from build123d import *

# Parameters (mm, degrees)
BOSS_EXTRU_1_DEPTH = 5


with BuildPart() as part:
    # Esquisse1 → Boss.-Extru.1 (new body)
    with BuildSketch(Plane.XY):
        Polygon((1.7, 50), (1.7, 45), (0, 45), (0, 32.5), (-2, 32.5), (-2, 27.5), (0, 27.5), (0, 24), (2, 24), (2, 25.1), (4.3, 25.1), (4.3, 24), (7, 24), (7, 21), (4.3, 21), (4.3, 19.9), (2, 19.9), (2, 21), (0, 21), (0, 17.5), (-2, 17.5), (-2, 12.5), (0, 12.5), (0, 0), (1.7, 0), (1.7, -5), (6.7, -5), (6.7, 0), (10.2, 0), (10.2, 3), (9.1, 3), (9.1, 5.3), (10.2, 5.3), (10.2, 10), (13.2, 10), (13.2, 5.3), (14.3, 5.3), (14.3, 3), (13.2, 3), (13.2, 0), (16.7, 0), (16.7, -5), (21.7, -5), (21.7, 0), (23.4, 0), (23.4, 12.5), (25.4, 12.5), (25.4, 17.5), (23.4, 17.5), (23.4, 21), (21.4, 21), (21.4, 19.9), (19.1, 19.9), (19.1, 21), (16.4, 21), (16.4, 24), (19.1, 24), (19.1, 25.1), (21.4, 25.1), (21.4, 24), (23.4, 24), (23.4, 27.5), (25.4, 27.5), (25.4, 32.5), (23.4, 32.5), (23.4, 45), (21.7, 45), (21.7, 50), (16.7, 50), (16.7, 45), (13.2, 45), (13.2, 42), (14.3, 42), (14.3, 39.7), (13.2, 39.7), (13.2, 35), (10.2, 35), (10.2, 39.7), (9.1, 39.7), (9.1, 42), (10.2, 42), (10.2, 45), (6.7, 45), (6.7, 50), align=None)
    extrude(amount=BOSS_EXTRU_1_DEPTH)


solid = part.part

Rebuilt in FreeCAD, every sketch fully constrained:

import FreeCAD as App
import Part
import Sketcher

doc = App.newDocument("Part")
body = doc.addObject("PartDesign::Body", "Body")

sketch1 = body.newObject("Sketcher::SketchObject", "Sketch")
sketch1.AttachmentSupport = (doc.getObject("XY_Plane"), [""])
sketch1.MapMode = "FlatFace"
sketch1.addGeometry([
    Part.LineSegment(App.Vector(1.7, 50, 0), App.Vector(1.7, 45, 0)),
    Part.LineSegment(App.Vector(1.7, 45, 0), App.Vector(0, 45, 0)),
    Part.LineSegment(App.Vector(0, 45, 0), App.Vector(0, 32.5, 0)),
    Part.LineSegment(App.Vector(0, 32.5, 0), App.Vector(-2, 32.5, 0)),
    Part.LineSegment(App.Vector(-2, 32.5, 0), App.Vector(-2, 27.5, 0)),
    Part.LineSegment(App.Vector(-2, 27.5, 0), App.Vector(0, 27.5, 0)),
    Part.LineSegment(App.Vector(0, 27.5, 0), App.Vector(0, 24, 0)),
    Part.LineSegment(App.Vector(0, 24, 0), App.Vector(2, 24, 0)),
    Part.LineSegment(App.Vector(2, 24, 0), App.Vector(2, 25.1, 0)),
    Part.LineSegment(App.Vector(2, 25.1, 0), App.Vector(4.3, 25.1, 0)),
    Part.LineSegment(App.Vector(4.3, 25.1, 0), App.Vector(4.3, 24, 0)),
    Part.LineSegment(App.Vector(4.3, 24, 0), App.Vector(7, 24, 0)),
    Part.LineSegment(App.Vector(7, 24, 0), App.Vector(7, 21, 0)),
    Part.LineSegment(App.Vector(7, 21, 0), App.Vector(4.3, 21, 0)),
    Part.LineSegment(App.Vector(4.3, 21, 0), App.Vector(4.3, 19.9, 0)),
    Part.LineSegment(App.Vector(4.3, 19.9, 0), App.Vector(2, 19.9, 0)),
    Part.LineSegment(App.Vector(2, 19.9, 0), App.Vector(2, 21, 0)),
    Part.LineSegment(App.Vector(2, 21, 0), App.Vector(0, 21, 0)),
    Part.LineSegment(App.Vector(0, 21, 0), App.Vector(0, 17.5, 0)),
    Part.LineSegment(App.Vector(0, 17.5, 0), App.Vector(-2, 17.5, 0)),
    Part.LineSegment(App.Vector(-2, 17.5, 0), App.Vector(-2, 12.5, 0)),
    Part.LineSegment(App.Vector(-2, 12.5, 0), App.Vector(0, 12.5, 0)),
    Part.LineSegment(App.Vector(0, 12.5, 0), App.Vector(0, 0, 0)),
    Part.LineSegment(App.Vector(0, 0, 0), App.Vector(1.7, 0, 0)),
    Part.LineSegment(App.Vector(1.7, 0, 0), App.Vector(1.7, -5, 0)),
    Part.LineSegment(App.Vector(1.7, -5, 0), App.Vector(6.7, -5, 0)),
    Part.LineSegment(App.Vector(6.7, -5, 0), App.Vector(6.7, 0, 0)),
    Part.LineSegment(App.Vector(6.7, 0, 0), App.Vector(10.2, 0, 0)),
    Part.LineSegment(App.Vector(10.2, 0, 0), App.Vector(10.2, 3, 0)),
    Part.LineSegment(App.Vector(10.2, 3, 0), App.Vector(9.1, 3, 0)),
    Part.LineSegment(App.Vector(9.1, 3, 0), App.Vector(9.1, 5.3, 0)),
    Part.LineSegment(App.Vector(9.1, 5.3, 0), App.Vector(10.2, 5.3, 0)),
    Part.LineSegment(App.Vector(10.2, 5.3, 0), App.Vector(10.2, 10, 0)),
    Part.LineSegment(App.Vector(10.2, 10, 0), App.Vector(13.2, 10, 0)),
    Part.LineSegment(App.Vector(13.2, 10, 0), App.Vector(13.2, 5.3, 0)),
    Part.LineSegment(App.Vector(13.2, 5.3, 0), App.Vector(14.3, 5.3, 0)),
    Part.LineSegment(App.Vector(14.3, 5.3, 0), App.Vector(14.3, 3, 0)),
    Part.LineSegment(App.Vector(14.3, 3, 0), App.Vector(13.2, 3, 0)),
    Part.LineSegment(App.Vector(13.2, 3, 0), App.Vector(13.2, 0, 0)),
    Part.LineSegment(App.Vector(13.2, 0, 0), App.Vector(16.7, 0, 0)),
    Part.LineSegment(App.Vector(16.7, 0, 0), App.Vector(16.7, -5, 0)),
    Part.LineSegment(App.Vector(16.7, -5, 0), App.Vector(21.7, -5, 0)),
    Part.LineSegment(App.Vector(21.7, -5, 0), App.Vector(21.7, 0, 0)),
    Part.LineSegment(App.Vector(21.7, 0, 0), App.Vector(23.4, 0, 0)),
    Part.LineSegment(App.Vector(23.4, 0, 0), App.Vector(23.4, 12.5, 0)),
    Part.LineSegment(App.Vector(23.4, 12.5, 0), App.Vector(25.4, 12.5, 0)),
    Part.LineSegment(App.Vector(25.4, 12.5, 0), App.Vector(25.4, 17.5, 0)),
    Part.LineSegment(App.Vector(25.4, 17.5, 0), App.Vector(23.4, 17.5, 0)),
    Part.LineSegment(App.Vector(23.4, 17.5, 0), App.Vector(23.4, 21, 0)),
    Part.LineSegment(App.Vector(23.4, 21, 0), App.Vector(21.4, 21, 0)),
    Part.LineSegment(App.Vector(21.4, 21, 0), App.Vector(21.4, 19.9, 0)),
    Part.LineSegment(App.Vector(21.4, 19.9, 0), App.Vector(19.1, 19.9, 0)),
    Part.LineSegment(App.Vector(19.1, 19.9, 0), App.Vector(19.1, 21, 0)),
    Part.LineSegment(App.Vector(19.1, 21, 0), App.Vector(16.4, 21, 0)),
    Part.LineSegment(App.Vector(16.4, 21, 0), App.Vector(16.4, 24, 0)),
    Part.LineSegment(App.Vector(16.4, 24, 0), App.Vector(19.1, 24, 0)),
    Part.LineSegment(App.Vector(19.1, 24, 0), App.Vector(19.1, 25.1, 0)),
    Part.LineSegment(App.Vector(19.1, 25.1, 0), App.Vector(21.4, 25.1, 0)),
    Part.LineSegment(App.Vector(21.4, 25.1, 0), App.Vector(21.4, 24, 0)),
    Part.LineSegment(App.Vector(21.4, 24, 0), App.Vector(23.4, 24, 0)),
    Part.LineSegment(App.Vector(23.4, 24, 0), App.Vector(23.4, 27.5, 0)),
    Part.LineSegment(App.Vector(23.4, 27.5, 0), App.Vector(25.4, 27.5, 0)),
    Part.LineSegment(App.Vector(25.4, 27.5, 0), App.Vector(25.4, 32.5, 0)),
    Part.LineSegment(App.Vector(25.4, 32.5, 0), App.Vector(23.4, 32.5, 0)),
    Part.LineSegment(App.Vector(23.4, 32.5, 0), App.Vector(23.4, 45, 0)),
    Part.LineSegment(App.Vector(23.4, 45, 0), App.Vector(21.7, 45, 0)),
    Part.LineSegment(App.Vector(21.7, 45, 0), App.Vector(21.7, 50, 0)),
    Part.LineSegment(App.Vector(21.7, 50, 0), App.Vector(16.7, 50, 0)),
    Part.LineSegment(App.Vector(16.7, 50, 0), App.Vector(16.7, 45, 0)),
    Part.LineSegment(App.Vector(16.7, 45, 0), App.Vector(13.2, 45, 0)),
    Part.LineSegment(App.Vector(13.2, 45, 0), App.Vector(13.2, 42, 0)),
    Part.LineSegment(App.Vector(13.2, 42, 0), App.Vector(14.3, 42, 0)),
    Part.LineSegment(App.Vector(14.3, 42, 0), App.Vector(14.3, 39.7, 0)),
    Part.LineSegment(App.Vector(14.3, 39.7, 0), App.Vector(13.2, 39.7, 0)),
    Part.LineSegment(App.Vector(13.2, 39.7, 0), App.Vector(13.2, 35, 0)),
    Part.LineSegment(App.Vector(13.2, 35, 0), App.Vector(10.2, 35, 0)),
    Part.LineSegment(App.Vector(10.2, 35, 0), App.Vector(10.2, 39.7, 0)),
    Part.LineSegment(App.Vector(10.2, 39.7, 0), App.Vector(9.1, 39.7, 0)),
    Part.LineSegment(App.Vector(9.1, 39.7, 0), App.Vector(9.1, 42, 0)),
    Part.LineSegment(App.Vector(9.1, 42, 0), App.Vector(10.2, 42, 0)),
    Part.LineSegment(App.Vector(10.2, 42, 0), App.Vector(10.2, 45, 0)),
    Part.LineSegment(App.Vector(10.2, 45, 0), App.Vector(6.7, 45, 0)),
    Part.LineSegment(App.Vector(6.7, 45, 0), App.Vector(6.7, 50, 0)),
    Part.LineSegment(App.Vector(6.7, 50, 0), App.Vector(1.7, 50, 0)),
], False)
sketch1.addConstraint([
    Sketcher.Constraint("Coincident", 0, 2, 1, 1),
    Sketcher.Constraint("Coincident", 1, 2, 2, 1),
    Sketcher.Constraint("Coincident", 2, 2, 3, 1),
    Sketcher.Constraint("Coincident", 3, 2, 4, 1),
    Sketcher.Constraint("Coincident", 4, 2, 5, 1),
    Sketcher.Constraint("Coincident", 5, 2, 6, 1),
    Sketcher.Constraint("Coincident", 6, 2, 7, 1),
    Sketcher.Constraint("Coincident", 7, 2, 8, 1),
    Sketcher.Constraint("Coincident", 8, 2, 9, 1),
    Sketcher.Constraint("Coincident", 9, 2, 10, 1),
    Sketcher.Constraint("Coincident", 10, 2, 11, 1),
    Sketcher.Constraint("Coincident", 11, 2, 12, 1),
    Sketcher.Constraint("Coincident", 12, 2, 13, 1),
    Sketcher.Constraint("Coincident", 13, 2, 14, 1),
    Sketcher.Constraint("Coincident", 14, 2, 15, 1),
    Sketcher.Constraint("Coincident", 15, 2, 16, 1),
    Sketcher.Constraint("Coincident", 16, 2, 17, 1),
    Sketcher.Constraint("Coincident", 17, 2, 18, 1),
    Sketcher.Constraint("Coincident", 18, 2, 19, 1),
    Sketcher.Constraint("Coincident", 19, 2, 20, 1),
    Sketcher.Constraint("Coincident", 20, 2, 21, 1),
    Sketcher.Constraint("Coincident", 21, 2, 22, 1),
    Sketcher.Constraint("Coincident", 22, 2, 23, 1),
    Sketcher.Constraint("Coincident", 23, 2, 24, 1),
    Sketcher.Constraint("Coincident", 24, 2, 25, 1),
    Sketcher.Constraint("Coincident", 25, 2, 26, 1),
    Sketcher.Constraint("Coincident", 26, 2, 27, 1),
    Sketcher.Constraint("Coincident", 27, 2, 28, 1),
    Sketcher.Constraint("Coincident", 28, 2, 29, 1),
    Sketcher.Constraint("Coincident", 29, 2, 30, 1),
    Sketcher.Constraint("Coincident", 30, 2, 31, 1),
    Sketcher.Constraint("Coincident", 31, 2, 32, 1),
    Sketcher.Constraint("Coincident", 32, 2, 33, 1),
    Sketcher.Constraint("Coincident", 33, 2, 34, 1),
    Sketcher.Constraint("Coincident", 34, 2, 35, 1),
    Sketcher.Constraint("Coincident", 35, 2, 36, 1),
    Sketcher.Constraint("Coincident", 36, 2, 37, 1),
    Sketcher.Constraint("Coincident", 37, 2, 38, 1),
    Sketcher.Constraint("Coincident", 38, 2, 39, 1),
    Sketcher.Constraint("Coincident", 39, 2, 40, 1),
    Sketcher.Constraint("Coincident", 40, 2, 41, 1),
    Sketcher.Constraint("Coincident", 41, 2, 42, 1),
    Sketcher.Constraint("Coincident", 42, 2, 43, 1),
    Sketcher.Constraint("Coincident", 43, 2, 44, 1),
    Sketcher.Constraint("Coincident", 44, 2, 45, 1),
    Sketcher.Constraint("Coincident", 45, 2, 46, 1),
    Sketcher.Constraint("Coincident", 46, 2, 47, 1),
    Sketcher.Constraint("Coincident", 47, 2, 48, 1),
    Sketcher.Constraint("Coincident", 48, 2, 49, 1),
    Sketcher.Constraint("Coincident", 49, 2, 50, 1),
    Sketcher.Constraint("Coincident", 50, 2, 51, 1),
    Sketcher.Constraint("Coincident", 51, 2, 52, 1),
    Sketcher.Constraint("Coincident", 52, 2, 53, 1),
    Sketcher.Constraint("Coincident", 53, 2, 54, 1),
    Sketcher.Constraint("Coincident", 54, 2, 55, 1),
    Sketcher.Constraint("Coincident", 55, 2, 56, 1),
    Sketcher.Constraint("Coincident", 56, 2, 57, 1),
    Sketcher.Constraint("Coincident", 57, 2, 58, 1),
    Sketcher.Constraint("Coincident", 58, 2, 59, 1),
    Sketcher.Constraint("Coincident", 59, 2, 60, 1),
    Sketcher.Constraint("Coincident", 60, 2, 61, 1),
    Sketcher.Constraint("Coincident", 61, 2, 62, 1),
    Sketcher.Constraint("Coincident", 62, 2, 63, 1),
    Sketcher.Constraint("Coincident", 63, 2, 64, 1),
    Sketcher.Constraint("Coincident", 64, 2, 65, 1),
    Sketcher.Constraint("Coincident", 65, 2, 66, 1),
    Sketcher.Constraint("Coincident", 66, 2, 67, 1),
    Sketcher.Constraint("Coincident", 67, 2, 68, 1),
    Sketcher.Constraint("Coincident", 68, 2, 69, 1),
    Sketcher.Constraint("Coincident", 69, 2, 70, 1),
    Sketcher.Constraint("Coincident", 70, 2, 71, 1),
    Sketcher.Constraint("Coincident", 71, 2, 72, 1),
    Sketcher.Constraint("Coincident", 72, 2, 73, 1),
    Sketcher.Constraint("Coincident", 73, 2, 74, 1),
    Sketcher.Constraint("Coincident", 74, 2, 75, 1),
    Sketcher.Constraint("Coincident", 75, 2, 76, 1),
    Sketcher.Constraint("Coincident", 76, 2, 77, 1),
    Sketcher.Constraint("Coincident", 77, 2, 78, 1),
    Sketcher.Constraint("Coincident", 78, 2, 79, 1),
    Sketcher.Constraint("Coincident", 79, 2, 80, 1),
    Sketcher.Constraint("Coincident", 80, 2, 81, 1),
    Sketcher.Constraint("Coincident", 81, 2, 82, 1),
    Sketcher.Constraint("Coincident", 82, 2, 83, 1),
    Sketcher.Constraint("Coincident", 83, 2, 0, 1),
    Sketcher.Constraint("Vertical", 0),
    Sketcher.Constraint("Horizontal", 1),
    Sketcher.Constraint("Vertical", 2),
    Sketcher.Constraint("Horizontal", 3),
    Sketcher.Constraint("Vertical", 4),
    Sketcher.Constraint("Horizontal", 5),
    Sketcher.Constraint("Vertical", 6),
    Sketcher.Constraint("Horizontal", 7),
    Sketcher.Constraint("Vertical", 8),
    Sketcher.Constraint("Horizontal", 9),
    Sketcher.Constraint("Vertical", 10),
    Sketcher.Constraint("Horizontal", 11),
    Sketcher.Constraint("Vertical", 12),
    Sketcher.Constraint("Horizontal", 13),
    Sketcher.Constraint("Vertical", 14),
    Sketcher.Constraint("Horizontal", 15),
    Sketcher.Constraint("Vertical", 16),
    Sketcher.Constraint("Horizontal", 17),
    Sketcher.Constraint("Vertical", 18),
    Sketcher.Constraint("Horizontal", 19),
    Sketcher.Constraint("Vertical", 20),
    Sketcher.Constraint("Horizontal", 21),
    Sketcher.Constraint("Vertical", 22),
    Sketcher.Constraint("Horizontal", 23),
    Sketcher.Constraint("Vertical", 24),
    Sketcher.Constraint("Horizontal", 25),
    Sketcher.Constraint("Vertical", 26),
    Sketcher.Constraint("Horizontal", 27),
    Sketcher.Constraint("Vertical", 28),
    Sketcher.Constraint("Horizontal", 29),
    Sketcher.Constraint("Vertical", 30),
    Sketcher.Constraint("Horizontal", 31),
    Sketcher.Constraint("Vertical", 32),
    Sketcher.Constraint("Horizontal", 33),
    Sketcher.Constraint("Vertical", 34),
    Sketcher.Constraint("Horizontal", 35),
    Sketcher.Constraint("Vertical", 36),
    Sketcher.Constraint("Horizontal", 37),
    Sketcher.Constraint("Vertical", 38),
    Sketcher.Constraint("Horizontal", 39),
    Sketcher.Constraint("Vertical", 40),
    Sketcher.Constraint("Horizontal", 41),
    Sketcher.Constraint("Vertical", 42),
    Sketcher.Constraint("Horizontal", 43),
    Sketcher.Constraint("Vertical", 44),
    Sketcher.Constraint("Horizontal", 45),
    Sketcher.Constraint("Vertical", 46),
    Sketcher.Constraint("Horizontal", 47),
    Sketcher.Constraint("Vertical", 48),
    Sketcher.Constraint("Horizontal", 49),
    Sketcher.Constraint("Vertical", 50),
    Sketcher.Constraint("Horizontal", 51),
    Sketcher.Constraint("Vertical", 52),
    Sketcher.Constraint("Horizontal", 53),
    Sketcher.Constraint("Vertical", 54),
    Sketcher.Constraint("Horizontal", 55),
    Sketcher.Constraint("Vertical", 56),
    Sketcher.Constraint("Horizontal", 57),
    Sketcher.Constraint("Vertical", 58),
    Sketcher.Constraint("Horizontal", 59),
    Sketcher.Constraint("Vertical", 60),
    Sketcher.Constraint("Horizontal", 61),
    Sketcher.Constraint("Vertical", 62),
    Sketcher.Constraint("Horizontal", 63),
    Sketcher.Constraint("Vertical", 64),
    Sketcher.Constraint("Horizontal", 65),
    Sketcher.Constraint("Vertical", 66),
    Sketcher.Constraint("Horizontal", 67),
    Sketcher.Constraint("Vertical", 68),
    Sketcher.Constraint("Horizontal", 69),
    Sketcher.Constraint("Vertical", 70),
    Sketcher.Constraint("Horizontal", 71),
    Sketcher.Constraint("Vertical", 72),
    Sketcher.Constraint("Horizontal", 73),
    Sketcher.Constraint("Vertical", 74),
    Sketcher.Constraint("Horizontal", 75),
    Sketcher.Constraint("Vertical", 76),
    Sketcher.Constraint("Horizontal", 77),
    Sketcher.Constraint("Vertical", 78),
    Sketcher.Constraint("Horizontal", 79),
    Sketcher.Constraint("Vertical", 80),
    Sketcher.Constraint("Horizontal", 81),
    Sketcher.Constraint("Vertical", 82),
    Sketcher.Constraint("Horizontal", 83),
    Sketcher.Constraint("Coincident", 22, 2, -1, 1),
    Sketcher.Constraint("PointOnObject", 1, 2, -2),
    Sketcher.Constraint("PointOnObject", 5, 2, -2),
    Sketcher.Constraint("PointOnObject", 17, 2, -2),
    Sketcher.Constraint("PointOnObject", 26, 2, -1),
    Sketcher.Constraint("PointOnObject", 38, 2, -1),
    Sketcher.Constraint("PointOnObject", 42, 2, -1),
    Sketcher.Constraint("Horizontal", 7, 2, 10, 2),
    Sketcher.Constraint("Horizontal", 13, 2, 16, 2),
    Sketcher.Constraint("Horizontal", 31, 2, 34, 2),
    Sketcher.Constraint("Horizontal", 29, 2, 36, 2),
    Sketcher.Constraint("Horizontal", 25, 2, 40, 2),
    Sketcher.Constraint("Horizontal", 21, 2, 44, 2),
    Sketcher.Constraint("Horizontal", 19, 2, 46, 2),
    Sketcher.Constraint("Horizontal", 17, 2, 48, 2),
    Sketcher.Constraint("Horizontal", 15, 2, 50, 2),
    Sketcher.Constraint("Horizontal", 49, 2, 52, 2),
    Sketcher.Constraint("Horizontal", 11, 2, 54, 2),
    Sketcher.Constraint("Horizontal", 9, 2, 56, 2),
    Sketcher.Constraint("Horizontal", 55, 2, 58, 2),
    Sketcher.Constraint("Horizontal", 5, 2, 60, 2),
    Sketcher.Constraint("Horizontal", 3, 2, 62, 2),
    Sketcher.Constraint("Horizontal", 1, 2, 64, 2),
    Sketcher.Constraint("Horizontal", 65, 2, 68, 2),
    Sketcher.Constraint("Horizontal", 73, 2, 76, 2),
    Sketcher.Constraint("Horizontal", 71, 2, 78, 2),
    Sketcher.Constraint("Horizontal", 69, 2, 80, 2),
    Sketcher.Constraint("Horizontal", 67, 2, 82, 2),
    Sketcher.Constraint("Vertical", 10, 2, 13, 2),
    Sketcher.Constraint("Vertical", 8, 2, 15, 2),
    Sketcher.Constraint("Vertical", 4, 2, 19, 2),
    Sketcher.Constraint("Vertical", 0, 2, 23, 2),
    Sketcher.Constraint("Vertical", 28, 2, 31, 2),
    Sketcher.Constraint("Vertical", 34, 2, 37, 2),
    Sketcher.Constraint("Vertical", 44, 2, 47, 2),
    Sketcher.Constraint("Vertical", 52, 2, 55, 2),
    Sketcher.Constraint("Vertical", 50, 2, 57, 2),
    Sketcher.Constraint("Vertical", 48, 2, 59, 2),
    Sketcher.Constraint("Vertical", 46, 2, 61, 2),
    Sketcher.Constraint("Vertical", 60, 2, 63, 2),
    Sketcher.Constraint("Vertical", 42, 2, 65, 2),
    Sketcher.Constraint("Vertical", 40, 2, 67, 2),
    Sketcher.Constraint("Vertical", 38, 2, 69, 2),
    Sketcher.Constraint("Vertical", 36, 2, 71, 2),
    Sketcher.Constraint("Vertical", 70, 2, 73, 2),
    Sketcher.Constraint("Vertical", 32, 2, 75, 2),
    Sketcher.Constraint("Vertical", 30, 2, 77, 2),
    Sketcher.Constraint("Vertical", 76, 2, 79, 2),
    Sketcher.Constraint("Vertical", 26, 2, 81, 2),
    Sketcher.Constraint("Equal", 5, 7),
    Sketcher.Constraint("Equal", 31, 35),
    Sketcher.Constraint("Equal", 27, 39),
    Sketcher.Constraint("Equal", 25, 41),
    Sketcher.Constraint("Equal", 23, 43),
    Sketcher.Constraint("Equal", 21, 45),
    Sketcher.Constraint("Equal", 47, 49),
    Sketcher.Constraint("Equal", 15, 51),
    Sketcher.Constraint("Equal", 13, 53),
    Sketcher.Constraint("Equal", 83, 0),
    Sketcher.Constraint("Equal", 0, 4),
    Sketcher.Constraint("Equal", 81, 6),
    Sketcher.Constraint("Equal", 79, 8),
    Sketcher.Constraint("Equal", 75, 12),
    Sketcher.Constraint("Equal", 10, 14),
    Sketcher.Constraint("Equal", 6, 18),
    Sketcher.Constraint("Equal", 4, 20),
    Sketcher.Constraint("Equal", 2, 22),
    Sketcher.Constraint("Equal", 20, 24),
    Sketcher.Constraint("Equal", 12, 28),
    Sketcher.Constraint("Equal", 57, 30),
    Sketcher.Constraint("Equal", 54, 70),
    Sketcher.Constraint("Equal", 36, 72),
    Sketcher.Constraint("Equal", 34, 74),
    Sketcher.Constraint("DistanceX", 3, 2, 3, 1, 2.0),
    Sketcher.Constraint("DistanceX", 25, 1, 25, 2, 5.0),
    Sketcher.Constraint("DistanceX", 33, 1, 33, 2, 3.0),
    Sketcher.Constraint("DistanceX", 1, 2, 1, 1, 1.7),
    Sketcher.Constraint("DistanceX", 9, 1, 9, 2, 2.3),
    Sketcher.Constraint("DistanceX", 11, 1, 11, 2, 2.7),
    Sketcher.Constraint("DistanceX", 27, 1, 27, 2, 3.5),
    Sketcher.Constraint("DistanceX", 29, 2, 29, 1, 1.1),
    Sketcher.Constraint("DistanceY", 2, 2, 2, 1, 12.5),
    Sketcher.Constraint("DistanceY", 32, 1, 32, 2, 4.7),
])
pad1 = body.newObject("PartDesign::Pad", "Pad")
pad1.Profile = sketch1
pad1.Length = 5

doc.recompute()
